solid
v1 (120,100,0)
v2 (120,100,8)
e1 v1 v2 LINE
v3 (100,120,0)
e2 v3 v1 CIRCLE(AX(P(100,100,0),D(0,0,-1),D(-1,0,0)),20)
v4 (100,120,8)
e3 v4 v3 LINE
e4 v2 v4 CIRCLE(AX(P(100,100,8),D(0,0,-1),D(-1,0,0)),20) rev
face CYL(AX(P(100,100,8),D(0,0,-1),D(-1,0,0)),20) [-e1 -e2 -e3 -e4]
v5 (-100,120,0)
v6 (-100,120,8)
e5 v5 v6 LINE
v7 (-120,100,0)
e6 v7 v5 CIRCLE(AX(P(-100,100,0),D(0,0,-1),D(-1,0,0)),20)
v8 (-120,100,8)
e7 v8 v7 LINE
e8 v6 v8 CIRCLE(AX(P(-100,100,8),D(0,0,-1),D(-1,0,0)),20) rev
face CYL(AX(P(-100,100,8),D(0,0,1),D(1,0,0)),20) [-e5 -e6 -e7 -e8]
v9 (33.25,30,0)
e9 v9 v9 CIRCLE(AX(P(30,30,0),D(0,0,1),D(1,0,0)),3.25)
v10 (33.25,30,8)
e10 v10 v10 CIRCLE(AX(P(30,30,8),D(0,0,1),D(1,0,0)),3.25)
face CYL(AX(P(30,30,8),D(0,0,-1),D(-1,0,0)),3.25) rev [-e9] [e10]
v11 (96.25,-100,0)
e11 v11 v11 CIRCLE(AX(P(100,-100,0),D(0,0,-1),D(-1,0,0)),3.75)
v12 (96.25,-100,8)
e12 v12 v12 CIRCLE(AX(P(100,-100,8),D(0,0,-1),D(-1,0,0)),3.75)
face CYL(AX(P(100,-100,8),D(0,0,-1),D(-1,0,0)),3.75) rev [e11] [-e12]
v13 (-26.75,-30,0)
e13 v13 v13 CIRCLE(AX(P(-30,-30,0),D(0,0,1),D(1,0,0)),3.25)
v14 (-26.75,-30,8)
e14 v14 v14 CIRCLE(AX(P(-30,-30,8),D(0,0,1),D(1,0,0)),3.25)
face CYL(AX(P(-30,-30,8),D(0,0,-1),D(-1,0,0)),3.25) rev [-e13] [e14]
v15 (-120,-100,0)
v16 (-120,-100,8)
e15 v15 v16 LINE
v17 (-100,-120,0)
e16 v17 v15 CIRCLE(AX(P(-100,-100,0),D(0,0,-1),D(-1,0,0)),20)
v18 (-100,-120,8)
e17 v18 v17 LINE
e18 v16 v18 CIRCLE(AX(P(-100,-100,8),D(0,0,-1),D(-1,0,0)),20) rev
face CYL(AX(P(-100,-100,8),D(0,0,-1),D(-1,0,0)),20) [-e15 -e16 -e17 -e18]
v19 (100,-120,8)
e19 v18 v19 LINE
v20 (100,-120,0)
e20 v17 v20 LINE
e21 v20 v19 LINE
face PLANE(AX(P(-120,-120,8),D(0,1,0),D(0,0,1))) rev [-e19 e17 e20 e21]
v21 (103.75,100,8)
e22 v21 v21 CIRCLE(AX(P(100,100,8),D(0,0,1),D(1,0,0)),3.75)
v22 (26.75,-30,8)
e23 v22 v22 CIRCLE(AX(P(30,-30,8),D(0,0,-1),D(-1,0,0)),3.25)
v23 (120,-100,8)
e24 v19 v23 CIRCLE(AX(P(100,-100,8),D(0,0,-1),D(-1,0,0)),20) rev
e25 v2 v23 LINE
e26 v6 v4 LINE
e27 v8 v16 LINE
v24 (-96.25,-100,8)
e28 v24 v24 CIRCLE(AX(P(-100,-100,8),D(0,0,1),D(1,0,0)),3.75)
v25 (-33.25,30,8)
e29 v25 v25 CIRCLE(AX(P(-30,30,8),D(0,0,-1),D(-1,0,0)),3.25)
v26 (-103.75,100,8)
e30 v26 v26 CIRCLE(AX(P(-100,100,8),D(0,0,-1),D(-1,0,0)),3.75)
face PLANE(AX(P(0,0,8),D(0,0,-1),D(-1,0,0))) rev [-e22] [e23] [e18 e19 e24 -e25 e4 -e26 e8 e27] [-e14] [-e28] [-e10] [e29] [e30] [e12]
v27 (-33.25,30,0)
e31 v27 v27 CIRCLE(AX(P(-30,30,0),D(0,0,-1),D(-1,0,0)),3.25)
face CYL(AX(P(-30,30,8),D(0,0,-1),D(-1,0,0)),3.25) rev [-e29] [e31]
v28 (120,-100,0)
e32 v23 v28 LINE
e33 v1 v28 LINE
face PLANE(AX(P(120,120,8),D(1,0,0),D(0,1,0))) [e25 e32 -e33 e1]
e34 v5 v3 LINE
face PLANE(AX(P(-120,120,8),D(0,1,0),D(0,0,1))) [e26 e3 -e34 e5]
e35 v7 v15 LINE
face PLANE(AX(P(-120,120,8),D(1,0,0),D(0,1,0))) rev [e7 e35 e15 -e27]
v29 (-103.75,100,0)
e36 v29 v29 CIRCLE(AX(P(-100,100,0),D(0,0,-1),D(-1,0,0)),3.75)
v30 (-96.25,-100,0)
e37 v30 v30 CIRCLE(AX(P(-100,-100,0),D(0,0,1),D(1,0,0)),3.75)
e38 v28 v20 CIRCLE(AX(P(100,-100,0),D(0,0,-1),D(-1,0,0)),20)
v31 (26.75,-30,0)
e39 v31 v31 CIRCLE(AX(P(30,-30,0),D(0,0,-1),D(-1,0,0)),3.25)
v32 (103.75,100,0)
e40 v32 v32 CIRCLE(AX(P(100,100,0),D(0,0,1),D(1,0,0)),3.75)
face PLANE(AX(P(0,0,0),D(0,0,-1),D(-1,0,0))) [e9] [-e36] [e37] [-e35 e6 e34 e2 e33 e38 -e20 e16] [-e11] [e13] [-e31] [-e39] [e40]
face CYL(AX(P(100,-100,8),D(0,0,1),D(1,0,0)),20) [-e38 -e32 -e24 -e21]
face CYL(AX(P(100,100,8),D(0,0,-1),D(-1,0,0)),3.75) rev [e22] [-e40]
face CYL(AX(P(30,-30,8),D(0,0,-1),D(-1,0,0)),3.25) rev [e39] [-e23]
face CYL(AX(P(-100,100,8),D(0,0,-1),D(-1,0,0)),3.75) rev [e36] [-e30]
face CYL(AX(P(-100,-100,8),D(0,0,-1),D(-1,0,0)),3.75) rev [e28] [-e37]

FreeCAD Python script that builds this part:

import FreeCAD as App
import Part
import Sketcher

V = App.Vector


def edges_at(feature, points):
    """Names of the edges that pass closest to the given points."""
    edges = feature.Shape.Edges
    near = lambda p: min(range(len(edges)), key=lambda i: edges[i].distToShape(Part.Vertex(*p))[0])
    return sorted({f"Edge{near(p) + 1}" for p in points})

doc = App.newDocument("Part")
params = doc.addObject("Spreadsheet::Sheet", "Params")
for row, (alias, value) in enumerate([
    ("sketch1_diameter", "7.5 mm"),
    ("sketch1_diameter2", "6.5 mm"),
    ("sketch1_width", "240 mm"),
    ("pad1_length", "8 mm"),
    ("fillet_radius", "20 mm"),
], start=1):
    params.set(f"A{row}", alias)
    params.set(f"B{row}", "=" + value)
    params.setAlias(f"B{row}", alias)

body = doc.addObject("PartDesign::Body", "Body")

# Sketch on XY plane
sketch1 = body.newObject("Sketcher::SketchObject", "Sketch")
sketch1.AttachmentSupport = (doc.getObject("XY_Plane"), [""])
sketch1.MapMode = "FlatFace"
sketch1.addGeometry([
    Part.LineSegment(V(-120, 120, 0), V(-120, -120, 0)),  # 0
    Part.LineSegment(V(-120, -120, 0), V(120, -120, 0)),  # 1
    Part.LineSegment(V(120, -120, 0), V(120, 120, 0)),  # 2
    Part.LineSegment(V(120, 120, 0), V(-120, 120, 0)),  # 3
    Part.Circle(V(-100, -100, 0), V(0, 0, 1), 3.8),  # 4
    Part.Circle(V(-30, -30, 0), V(0, 0, 1), 3.2),  # 5
    Part.Circle(V(100, -100, 0), V(0, 0, 1), 3.8),  # 6
    Part.Circle(V(30, -30, 0), V(0, 0, 1), 3.2),  # 7
    Part.Circle(V(-30, 30, 0), V(0, 0, 1), 3.2),  # 8
    Part.Circle(V(-100, 100, 0), V(0, 0, 1), 3.8),  # 9
    Part.Circle(V(30, 30, 0), V(0, 0, 1), 3.2),  # 10
    Part.Circle(V(100, 100, 0), V(0, 0, 1), 3.8),  # 11
], False)
sketch1.addConstraint([
    Sketcher.Constraint("Coincident", 0, 2, 1, 1),
    Sketcher.Constraint("Coincident", 1, 2, 2, 1),
    Sketcher.Constraint("Coincident", 2, 2, 3, 1),
    Sketcher.Constraint("Coincident", 3, 2, 0, 1),
    Sketcher.Constraint("Vertical", 0),
    Sketcher.Constraint("Horizontal", 1),
    Sketcher.Constraint("Vertical", 2),
    Sketcher.Constraint("Horizontal", 3),
    Sketcher.Constraint("Equal", 4, 6),
    Sketcher.Constraint("Equal", 5, 7),
    Sketcher.Constraint("Equal", 7, 8),
    Sketcher.Constraint("Equal", 6, 9),
    Sketcher.Constraint("Equal", 8, 10),
    Sketcher.Constraint("Equal", 9, 11),
    Sketcher.Constraint("Symmetric", 7, 3, 8, 3, -1, 1),
    Sketcher.Constraint("Symmetric", 6, 3, 9, 3, -1, 1),
    Sketcher.Constraint("Symmetric", 5, 3, 10, 3, -1, 1),
    Sketcher.Constraint("Symmetric", 4, 3, 11, 3, -1, 1),
    Sketcher.Constraint("Symmetric", 0, 2, 2, 2, -1, 1),
    Sketcher.Constraint("Symmetric", 4, 3, 6, 3, -2),
    Sketcher.Constraint("Symmetric", 5, 3, 7, 3, -2),
    Sketcher.Constraint("Equal", 3, 0),
    Sketcher.Constraint("Diameter", 4, 7.5),
    Sketcher.Constraint("Diameter", 5, 6.5),
    Sketcher.Constraint("DistanceX", 1, 1, 1, 2, 240.0),
    Sketcher.Constraint("DistanceX", 4, 3, -1, 1, 100.0),
    Sketcher.Constraint("DistanceY", 4, 3, -1, 1, 100.0),
    Sketcher.Constraint("DistanceX", 5, 3, -1, 1, 30.0),
    Sketcher.Constraint("DistanceY", 5, 3, -1, 1, 30.0),
])
sketch1.setExpression("Constraints[22]", "Params.sketch1_diameter")
sketch1.setExpression("Constraints[23]", "Params.sketch1_diameter2")
sketch1.setExpression("Constraints[24]", "Params.sketch1_width")
pad1 = body.newObject("PartDesign::Pad", "Pad")
pad1.Profile = sketch1
pad1.setExpression("Length", "Params.pad1_length")
doc.recompute()

fillet = body.newObject("PartDesign::Fillet", "Fillet")
fillet.Base = (pad1, edges_at(pad1, [
    (-120, 120, 4),
    (-120, -120, 4),
    (120, -120, 4),
    (120, 120, 4),
]))
fillet.setExpression("Radius", "Params.fillet_radius")

doc.recompute()
